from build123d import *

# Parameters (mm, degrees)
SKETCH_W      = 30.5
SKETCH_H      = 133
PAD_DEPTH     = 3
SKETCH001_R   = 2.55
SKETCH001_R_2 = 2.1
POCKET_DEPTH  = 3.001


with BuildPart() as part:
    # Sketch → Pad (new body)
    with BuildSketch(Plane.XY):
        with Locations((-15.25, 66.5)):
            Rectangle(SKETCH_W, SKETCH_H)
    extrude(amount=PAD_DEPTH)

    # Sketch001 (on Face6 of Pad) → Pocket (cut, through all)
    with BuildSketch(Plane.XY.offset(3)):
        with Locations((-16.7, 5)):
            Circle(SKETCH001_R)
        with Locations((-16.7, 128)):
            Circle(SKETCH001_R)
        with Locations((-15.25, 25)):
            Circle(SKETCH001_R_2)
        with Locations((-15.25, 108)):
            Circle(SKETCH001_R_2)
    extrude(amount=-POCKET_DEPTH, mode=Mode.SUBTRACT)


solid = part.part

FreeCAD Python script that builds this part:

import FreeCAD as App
import Part
import Sketcher

V = App.Vector


def add_polygon(sketch, points):
    """Adds a closed chain of lines whose ends are joined by coincident constraints."""
    first, n = sketch.GeometryCount, len(points)
    for a, b in zip(points, points[1:] + points[:1]):
        sketch.addGeometry(Part.LineSegment(App.Vector(*a, 0), App.Vector(*b, 0)), False)
    for i in range(n):
        sketch.addConstraint(Sketcher.Constraint("Coincident", first + i, 2, first + (i + 1) % n, 1))

doc = App.newDocument("Part")
params = doc.addObject("Spreadsheet::Sheet", "Params")
for row, (alias, value) in enumerate([
    ("sketch1_height", "133 mm"),
    ("sketch1_width", "30.5 mm"),
    ("pad1_length", "3 mm"),
    ("sketch2_diameter", "5.1 mm"),
    ("sketch2_diameter2", "4.2 mm"),
], start=1):
    params.set(f"A{row}", alias)
    params.set(f"B{row}", "=" + value)
    params.setAlias(f"B{row}", alias)

body = doc.addObject("PartDesign::Body", "Body")

# Sketch on XY plane
sketch1 = body.newObject("Sketcher::SketchObject", "Sketch")
sketch1.AttachmentSupport = (doc.getObject("XY_Plane"), [""])
sketch1.MapMode = "FlatFace"
add_polygon(sketch1, [(-30.5, 133), (-30.5, 0), (0, 0), (0, 133)])  # lines 0-3
sketch1.addConstraint([
    Sketcher.Constraint("Vertical", 0),
    Sketcher.Constraint("Horizontal", 1),
    Sketcher.Constraint("Vertical", 2),
    Sketcher.Constraint("Horizontal", 3),
    Sketcher.Constraint("Coincident", 1, 2, -1, 1),
    Sketcher.Constraint("DistanceY", 0, 2, 0, 1, 133.0),
    Sketcher.Constraint("DistanceX", 1, 1, 1, 2, 30.5),
])
sketch1.setExpression("Constraints[9]", "Params.sketch1_height")
sketch1.setExpression("Constraints[10]", "Params.sketch1_width")
pad1 = body.newObject("PartDesign::Pad", "Pad")
pad1.Profile = sketch1
pad1.setExpression("Length", "Params.pad1_length")

# Sketch on XY plane
sketch2 = body.newObject("Sketcher::SketchObject", "Sketch001")
sketch2.AttachmentSupport = (doc.getObject("XY_Plane"), [""])
sketch2.MapMode = "FlatFace"
sketch2.AttachmentOffset = App.Placement(V(0, 0, 3), App.Rotation())
sketch2.addGeometry([
    Part.Circle(V(-16.7, 5, 0), V(0, 0, 1), 2.55),
    Part.Circle(V(-16.7, 128, 0), V(0, 0, 1), 2.55),
    Part.Circle(V(-15.25, 25, 0), V(0, 0, 1), 2.1),
    Part.Circle(V(-15.25, 108, 0), V(0, 0, 1), 2.1),
], False)
sketch2.addConstraint([
    Sketcher.Constraint("Equal", 0, 1),
    Sketcher.Constraint("Equal", 2, 3),
    Sketcher.Constraint("Vertical", 0, 3, 1, 3),
    Sketcher.Constraint("Vertical", 2, 3, 3, 3),
    Sketcher.Constraint("Diameter", 0, 5.1),
    Sketcher.Constraint("Diameter", 2, 4.2),
    Sketcher.Constraint("DistanceY", -1, 1, 0, 3, 5.0),
    Sketcher.Constraint("DistanceY", -1, 1, 1, 3, 128.0),
    Sketcher.Constraint("DistanceY", -1, 1, 2, 3, 25.0),
    Sketcher.Constraint("DistanceY", -1, 1, 3, 3, 108.0),
    Sketcher.Constraint("DistanceX", 0, 3, -1, 1, 16.7),
    Sketcher.Constraint("DistanceX", 2, 3, -1, 1, 15.25),
])
sketch2.setExpression("Constraints[4]", "Params.sketch2_diameter")
sketch2.setExpression("Constraints[5]", "Params.sketch2_diameter2")
pocket1 = body.newObject("PartDesign::Pocket", "Pocket")
pocket1.Profile = sketch2
pocket1.Type = "ThroughAll"

doc.recompute()
